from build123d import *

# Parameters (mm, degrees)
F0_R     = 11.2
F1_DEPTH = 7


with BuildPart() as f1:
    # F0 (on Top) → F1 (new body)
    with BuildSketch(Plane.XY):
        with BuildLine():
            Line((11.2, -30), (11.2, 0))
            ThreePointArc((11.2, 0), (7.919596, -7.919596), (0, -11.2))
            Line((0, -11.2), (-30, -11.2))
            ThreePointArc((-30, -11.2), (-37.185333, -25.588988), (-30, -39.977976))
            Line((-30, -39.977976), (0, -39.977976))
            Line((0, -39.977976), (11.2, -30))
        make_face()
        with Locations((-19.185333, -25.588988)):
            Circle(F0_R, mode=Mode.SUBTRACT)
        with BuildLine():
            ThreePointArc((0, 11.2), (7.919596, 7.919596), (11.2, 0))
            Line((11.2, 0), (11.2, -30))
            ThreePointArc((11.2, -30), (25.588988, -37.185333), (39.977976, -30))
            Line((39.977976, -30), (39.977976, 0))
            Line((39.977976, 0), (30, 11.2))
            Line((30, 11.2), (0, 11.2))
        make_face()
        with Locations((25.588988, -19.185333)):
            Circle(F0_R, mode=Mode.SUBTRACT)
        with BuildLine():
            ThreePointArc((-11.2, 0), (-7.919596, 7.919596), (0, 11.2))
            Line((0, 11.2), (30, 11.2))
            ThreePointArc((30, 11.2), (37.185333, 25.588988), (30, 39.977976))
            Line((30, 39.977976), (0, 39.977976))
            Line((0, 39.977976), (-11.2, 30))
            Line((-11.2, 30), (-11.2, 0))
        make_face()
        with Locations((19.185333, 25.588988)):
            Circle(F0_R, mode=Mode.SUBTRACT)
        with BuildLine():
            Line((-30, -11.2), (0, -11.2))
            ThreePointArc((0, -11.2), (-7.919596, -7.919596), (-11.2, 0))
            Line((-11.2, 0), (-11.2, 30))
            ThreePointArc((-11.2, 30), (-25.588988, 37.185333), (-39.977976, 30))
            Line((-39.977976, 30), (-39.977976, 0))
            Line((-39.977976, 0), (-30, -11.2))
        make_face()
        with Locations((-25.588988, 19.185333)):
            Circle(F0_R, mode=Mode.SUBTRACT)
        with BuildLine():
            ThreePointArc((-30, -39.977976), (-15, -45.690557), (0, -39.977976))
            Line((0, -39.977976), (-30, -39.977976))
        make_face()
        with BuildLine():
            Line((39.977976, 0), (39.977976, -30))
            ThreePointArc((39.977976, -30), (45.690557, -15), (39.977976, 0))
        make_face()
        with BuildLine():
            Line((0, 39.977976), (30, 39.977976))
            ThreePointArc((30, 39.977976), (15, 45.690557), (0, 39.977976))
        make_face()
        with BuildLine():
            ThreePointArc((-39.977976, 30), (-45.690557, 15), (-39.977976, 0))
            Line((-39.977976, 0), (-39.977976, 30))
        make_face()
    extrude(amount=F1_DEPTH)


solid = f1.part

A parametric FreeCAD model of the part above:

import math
import FreeCAD as App
import Part
import Sketcher

doc = App.newDocument("Part")
body = doc.addObject("PartDesign::Body", "Body")

# Sketch on XY plane
sketch1 = body.newObject("Sketcher::SketchObject", "Sketch")
sketch1.AttachmentSupport = (doc.getObject("XY_Plane"), [""])
sketch1.MapMode = "FlatFace"
sketch1.addGeometry([
    Part.LineSegment(App.Vector(0, -40, 0), App.Vector(11, -30, 0)),  # 0
    Part.ArcOfCircle(Part.Circle(App.Vector(26, -19, 0), App.Vector(0, 0, 1), 18), math.radians(-143), math.radians(-37)),  # 1
    Part.ArcOfCircle(Part.Circle(App.Vector(23, -15, 0), App.Vector(0, 0, 1), 23), math.radians(-42), math.radians(42)),  # 2
    Part.LineSegment(App.Vector(40, 0, 0), App.Vector(30, 11, 0)),  # 3
    Part.ArcOfCircle(Part.Circle(App.Vector(19, 26, 0), App.Vector(0, 0, 1), 18), math.radians(-53), math.radians(53)),  # 4
    Part.ArcOfCircle(Part.Circle(App.Vector(15, 23, 0), App.Vector(0, 0, 1), 23), math.radians(48), math.radians(132)),  # 5
    Part.LineSegment(App.Vector(0, 40, 0), App.Vector(-11, 30, 0)),  # 6
    Part.ArcOfCircle(Part.Circle(App.Vector(-26, 19, 0), App.Vector(0, 0, 1), 18), math.radians(37), math.radians(143)),  # 7
    Part.ArcOfCircle(Part.Circle(App.Vector(-23, 15, 0), App.Vector(0, 0, 1), 23), math.radians(138), math.radians(222)),  # 8
    Part.LineSegment(App.Vector(-40, 0, 0), App.Vector(-30, -11, 0)),  # 9
    Part.ArcOfCircle(Part.Circle(App.Vector(-19, -26, 0), App.Vector(0, 0, 1), 18), math.radians(127), math.radians(233)),  # 10
    Part.ArcOfCircle(Part.Circle(App.Vector(-15, -23, 0), App.Vector(0, 0, 1), 23), math.radians(-132), math.radians(-48)),  # 11
    Part.Circle(App.Vector(-19, -26, 0), App.Vector(0, 0, 1), 11),  # 12
    Part.Circle(App.Vector(26, -19, 0), App.Vector(0, 0, 1), 11),  # 13
    Part.ArcOfCircle(Part.Circle(App.Vector(0, 0, 0), App.Vector(0, 0, 1), 11), math.radians(-90), math.radians(0)),  # 14
    Part.ArcOfCircle(Part.Circle(App.Vector(0, 0, 0), App.Vector(0, 0, 1), 11), math.radians(180), math.radians(270)),  # 15
    Part.ArcOfCircle(Part.Circle(App.Vector(0, 0, 0), App.Vector(0, 0, 1), 11), math.radians(90), math.radians(180)),  # 16
    Part.ArcOfCircle(Part.Circle(App.Vector(0, 0, 0), App.Vector(0, 0, 1), 11), math.radians(0), math.radians(90)),  # 17
    Part.Circle(App.Vector(-26, 19, 0), App.Vector(0, 0, 1), 11),  # 18
    Part.Circle(App.Vector(19, 26, 0), App.Vector(0, 0, 1), 11),  # 19
], False)
sketch1.addConstraint([
    Sketcher.Constraint("Coincident", 0, 2, 1, 1),
    Sketcher.Constraint("Coincident", 1, 2, 2, 1),
    Sketcher.Constraint("Tangent", 2, 2, 3, 1),
    Sketcher.Constraint("Coincident", 3, 2, 4, 1),
    Sketcher.Constraint("Coincident", 4, 2, 5, 1),
    Sketcher.Constraint("Tangent", 5, 2, 6, 1),
    Sketcher.Constraint("Coincident", 6, 2, 7, 1),
    Sketcher.Constraint("Coincident", 7, 2, 8, 1),
    Sketcher.Constraint("Tangent", 8, 2, 9, 1),
    Sketcher.Constraint("Coincident", 9, 2, 10, 1),
    Sketcher.Constraint("Coincident", 10, 2, 11, 1),
    Sketcher.Constraint("Tangent", 11, 2, 0, 1),
    Sketcher.Constraint("Tangent", 14, 1, 15, 2),
    Sketcher.Constraint("Tangent", 15, 1, 16, 2),
    Sketcher.Constraint("Tangent", 16, 1, 17, 2),
    Sketcher.Constraint("Tangent", 17, 1, 14, 2),
    Sketcher.Constraint("Coincident", 14, 3, -1, 1),
    Sketcher.Constraint("Coincident", 12, 3, 10, 3),
    Sketcher.Constraint("Coincident", 13, 3, 1, 3),
    Sketcher.Constraint("Coincident", 18, 3, 7, 3),
    Sketcher.Constraint("Coincident", 19, 3, 4, 3),
    Sketcher.Constraint("Equal", 1, 4),
    Sketcher.Constraint("Equal", 2, 5),
    Sketcher.Constraint("Equal", 4, 7),
    Sketcher.Constraint("Equal", 5, 8),
    Sketcher.Constraint("Equal", 7, 10),
    Sketcher.Constraint("Equal", 8, 11),
    Sketcher.Constraint("Equal", 12, 13),
    Sketcher.Constraint("Equal", 13, 14),
    Sketcher.Constraint("Equal", 14, 15),
    Sketcher.Constraint("Equal", 17, 18),
    Sketcher.Constraint("Equal", 18, 19),
    Sketcher.Constraint("Symmetric", 1, 3, 7, 3, -1, 1),
    Sketcher.Constraint("Symmetric", 2, 3, 8, 3, -1, 1),
    Sketcher.Constraint("Symmetric", 4, 3, 10, 3, -1, 1),
    Sketcher.Constraint("Symmetric", 5, 3, 11, 3, -1, 1),
    Sketcher.Constraint("Symmetric", 2, 2, 8, 2, -2),
    Sketcher.Constraint("Symmetric", 5, 2, 11, 2, -1),
    Sketcher.Constraint("PointOnObject", 14, 1, -2),
    Sketcher.Constraint("PointOnObject", 15, 1, -1),
    Sketcher.Constraint("PointOnObject", 16, 1, -2),
    Sketcher.Constraint("PointOnObject", 17, 1, -1),
    Sketcher.Constraint("Perpendicular", 0, 3),
    Sketcher.Constraint("Horizontal", 0, 2, 1, 2),
    Sketcher.Constraint("Horizontal", 4, 2, 5, 2),
    Sketcher.Constraint("Horizontal", 9, 2, 14, 1),
    Sketcher.Constraint("Vertical", 1, 2, 2, 2),
    Sketcher.Constraint("Vertical", 3, 2, 4, 2),
    Sketcher.Constraint("Vertical", 6, 2, 15, 1),
    Sketcher.Constraint("Radius", 1, 18.0),
    Sketcher.Constraint("Diameter", 12, 22.4),
    Sketcher.Constraint("Distance", 0, 15.0),
    Sketcher.Constraint("DistanceY", 2, 3, -1, 1, 15.0),
])
pad1 = body.newObject("PartDesign::Pad", "Pad")
pad1.Profile = sketch1
pad1.Length = 7

doc.recompute()
